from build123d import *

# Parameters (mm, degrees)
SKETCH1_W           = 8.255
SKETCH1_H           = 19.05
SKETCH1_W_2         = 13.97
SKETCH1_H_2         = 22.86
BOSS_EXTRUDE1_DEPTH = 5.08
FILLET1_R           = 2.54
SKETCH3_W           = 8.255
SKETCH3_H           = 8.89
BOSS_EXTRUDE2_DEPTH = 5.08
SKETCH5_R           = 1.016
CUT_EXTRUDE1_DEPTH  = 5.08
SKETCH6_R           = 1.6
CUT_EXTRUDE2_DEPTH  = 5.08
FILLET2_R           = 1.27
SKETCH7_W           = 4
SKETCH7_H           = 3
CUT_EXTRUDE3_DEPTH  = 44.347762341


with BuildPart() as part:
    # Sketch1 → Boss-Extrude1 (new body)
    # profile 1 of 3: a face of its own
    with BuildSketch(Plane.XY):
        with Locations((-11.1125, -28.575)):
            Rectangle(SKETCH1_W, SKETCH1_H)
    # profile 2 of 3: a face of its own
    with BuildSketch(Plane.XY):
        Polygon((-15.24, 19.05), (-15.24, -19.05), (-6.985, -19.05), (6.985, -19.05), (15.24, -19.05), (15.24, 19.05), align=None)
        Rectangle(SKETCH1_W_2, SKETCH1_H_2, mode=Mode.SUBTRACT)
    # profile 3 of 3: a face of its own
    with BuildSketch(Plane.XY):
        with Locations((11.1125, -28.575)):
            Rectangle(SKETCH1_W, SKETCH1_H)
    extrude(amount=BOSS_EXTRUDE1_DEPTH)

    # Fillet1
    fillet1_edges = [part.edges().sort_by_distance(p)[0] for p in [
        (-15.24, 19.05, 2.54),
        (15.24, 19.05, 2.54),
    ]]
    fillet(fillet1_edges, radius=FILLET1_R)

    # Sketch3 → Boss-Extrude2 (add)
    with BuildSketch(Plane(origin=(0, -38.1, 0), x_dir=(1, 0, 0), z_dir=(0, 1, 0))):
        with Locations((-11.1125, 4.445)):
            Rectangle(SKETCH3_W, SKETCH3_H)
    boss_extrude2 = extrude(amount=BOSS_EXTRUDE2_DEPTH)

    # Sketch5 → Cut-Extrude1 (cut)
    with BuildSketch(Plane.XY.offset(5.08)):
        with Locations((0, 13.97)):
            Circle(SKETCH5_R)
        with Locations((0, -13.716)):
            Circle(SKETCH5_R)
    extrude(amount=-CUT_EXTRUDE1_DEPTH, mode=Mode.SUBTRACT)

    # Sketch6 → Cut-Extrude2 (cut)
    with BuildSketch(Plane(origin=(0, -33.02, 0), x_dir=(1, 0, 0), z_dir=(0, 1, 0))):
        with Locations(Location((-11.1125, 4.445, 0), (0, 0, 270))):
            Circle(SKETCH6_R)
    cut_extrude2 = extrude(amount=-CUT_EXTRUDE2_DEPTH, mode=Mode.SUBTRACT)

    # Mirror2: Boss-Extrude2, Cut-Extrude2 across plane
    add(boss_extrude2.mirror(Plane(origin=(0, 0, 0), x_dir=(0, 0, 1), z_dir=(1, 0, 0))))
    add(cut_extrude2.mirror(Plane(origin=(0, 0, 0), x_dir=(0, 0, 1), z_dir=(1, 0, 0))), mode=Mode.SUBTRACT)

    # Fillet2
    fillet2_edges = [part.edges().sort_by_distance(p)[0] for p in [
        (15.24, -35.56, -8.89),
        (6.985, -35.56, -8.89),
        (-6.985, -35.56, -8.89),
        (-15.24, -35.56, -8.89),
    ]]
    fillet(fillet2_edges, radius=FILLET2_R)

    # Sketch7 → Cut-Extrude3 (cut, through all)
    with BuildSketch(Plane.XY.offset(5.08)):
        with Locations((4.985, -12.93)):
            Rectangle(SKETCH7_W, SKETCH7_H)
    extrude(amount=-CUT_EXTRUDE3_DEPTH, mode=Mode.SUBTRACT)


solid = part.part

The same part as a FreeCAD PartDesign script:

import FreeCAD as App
import Part
import Sketcher
from FreeCAD import Vector
Q = App.Units.Quantity


def edges_at(feature, points):
    """Names of the edges that pass closest to the given points."""
    edges = feature.Shape.Edges
    near = lambda p: min(range(len(edges)), key=lambda i: edges[i].distToShape(Part.Vertex(*p))[0])
    return sorted({f"Edge{near(p) + 1}" for p in points})

doc = App.newDocument("Part")
body = doc.addObject("PartDesign::Body", "Body")

sketch1 = body.newObject("Sketcher::SketchObject", "Sketch")
sketch1.AttachmentSupport = (doc.getObject("XY_Plane"), [""])
sketch1.MapMode = "FlatFace"
sketch1.addGeometry(Part.LineSegment(Vector(-15, -38, 0), Vector(-7, -38, 0)), False)
sketch1.addGeometry(Part.LineSegment(Vector(-7, -38, 0), Vector(-7, -19, 0)), False)
sketch1.addGeometry(Part.LineSegment(Vector(-7, -19, 0), Vector(7, -19, 0)), False)
sketch1.addGeometry(Part.LineSegment(Vector(7, -19, 0), Vector(7, -38, 0)), False)
sketch1.addGeometry(Part.LineSegment(Vector(7, -38, 0), Vector(15, -38, 0)), False)
sketch1.addGeometry(Part.LineSegment(Vector(15, -38, 0), Vector(15, 19, 0)), False)
sketch1.addGeometry(Part.LineSegment(Vector(15, 19, 0), Vector(-15, 19, 0)), False)
sketch1.addGeometry(Part.LineSegment(Vector(-15, 19, 0), Vector(-15, -38, 0)), False)
sketch1.addGeometry(Part.LineSegment(Vector(-7, -11, 0), Vector(-7, 11, 0)), False)
sketch1.addGeometry(Part.LineSegment(Vector(-7, 11, 0), Vector(7, 11, 0)), False)
sketch1.addGeometry(Part.LineSegment(Vector(7, 11, 0), Vector(7, -11, 0)), False)
sketch1.addGeometry(Part.LineSegment(Vector(7, -11, 0), Vector(-7, -11, 0)), False)
sketch1.addConstraint(Sketcher.Constraint("Coincident", 0, 2, 1, 1))
sketch1.addConstraint(Sketcher.Constraint("Coincident", 1, 2, 2, 1))
sketch1.addConstraint(Sketcher.Constraint("Coincident", 2, 2, 3, 1))
sketch1.addConstraint(Sketcher.Constraint("Coincident", 3, 2, 4, 1))
sketch1.addConstraint(Sketcher.Constraint("Coincident", 4, 2, 5, 1))
sketch1.addConstraint(Sketcher.Constraint("Coincident", 5, 2, 6, 1))
sketch1.addConstraint(Sketcher.Constraint("Coincident", 6, 2, 7, 1))
sketch1.addConstraint(Sketcher.Constraint("Coincident", 7, 2, 0, 1))
sketch1.addConstraint(Sketcher.Constraint("Coincident", 8, 2, 9, 1))
sketch1.addConstraint(Sketcher.Constraint("Coincident", 9, 2, 10, 1))
sketch1.addConstraint(Sketcher.Constraint("Coincident", 10, 2, 11, 1))
sketch1.addConstraint(Sketcher.Constraint("Coincident", 11, 2, 8, 1))
sketch1.addConstraint(Sketcher.Constraint("Horizontal", 0))
sketch1.addConstraint(Sketcher.Constraint("Vertical", 1))
sketch1.addConstraint(Sketcher.Constraint("Horizontal", 2))
sketch1.addConstraint(Sketcher.Constraint("Vertical", 3))
sketch1.addConstraint(Sketcher.Constraint("Horizontal", 4))
sketch1.addConstraint(Sketcher.Constraint("Vertical", 5))
sketch1.addConstraint(Sketcher.Constraint("Horizontal", 6))
sketch1.addConstraint(Sketcher.Constraint("Vertical", 7))
sketch1.addConstraint(Sketcher.Constraint("Vertical", 8))
sketch1.addConstraint(Sketcher.Constraint("Horizontal", 9))
sketch1.addConstraint(Sketcher.Constraint("Vertical", 10))
sketch1.addConstraint(Sketcher.Constraint("Horizontal", 11))
sketch1.addConstraint(Sketcher.Constraint("Symmetric", 8, 2, 10, 2, -1, 1))
sketch1.addConstraint(Sketcher.Constraint("Symmetric", 0, 2, 3, 2, -2))
sketch1.addConstraint(Sketcher.Constraint("Vertical", 1, 2, 8, 2))
sketch1.addConstraint(Sketcher.Constraint("Equal", 0, 4))
sketch1.addConstraint(Sketcher.Constraint("DistanceX", 6, 2, 6, 1, Q("1.2 in")))
sketch1.addConstraint(Sketcher.Constraint("DistanceY", 8, 1, 8, 2, Q("0.9 in")))
sketch1.addConstraint(Sketcher.Constraint("DistanceX", 2, 1, 2, 2, Q("0.55 in")))
sketch1.addConstraint(Sketcher.Constraint("DistanceY", 1, 1, 1, 2, Q("0.75 in")))
sketch1.addConstraint(Sketcher.Constraint("DistanceY", 5, 1, 5, 2, Q("2.25 in")))
sketch1.addConstraint(Sketcher.Constraint("DistanceY", 0, 2, -1, 1, Q("1.5 in")))
pad1 = body.newObject("PartDesign::Pad", "Pad")
pad1.Profile = sketch1
pad1.Length = Q("0.2 in")
doc.recompute()

fillet = body.newObject("PartDesign::Fillet", "Fillet")
fillet.Base = (pad1, edges_at(pad1, [(-15.24, 19.05, 2.54), (15.24, 19.05, 2.54)]))
fillet.Radius = Q("0.1 in")

sketch2 = body.newObject("Sketcher::SketchObject", "Sketch001")
sketch2.AttachmentSupport = (doc.getObject("XZ_Plane"), [""])
sketch2.MapMode = "FlatFace"
sketch2.AttachmentOffset = App.Placement(Vector(0, 0, 1.5 * 25.4), App.Rotation())
sketch2.addGeometry(Part.LineSegment(Vector(-15, -9, 0), Vector(-15, 0, 0)), False)
sketch2.addGeometry(Part.LineSegment(Vector(-15, 0, 0), Vector(-7, 0, 0)), False)
sketch2.addGeometry(Part.LineSegment(Vector(-7, 0, 0), Vector(-7, -9, 0)), False)
sketch2.addGeometry(Part.LineSegment(Vector(-7, -9, 0), Vector(-15, -9, 0)), False)
sketch2.addConstraint(Sketcher.Constraint("Coincident", 0, 2, 1, 1))
sketch2.addConstraint(Sketcher.Constraint("Coincident", 1, 2, 2, 1))
sketch2.addConstraint(Sketcher.Constraint("Coincident", 2, 2, 3, 1))
sketch2.addConstraint(Sketcher.Constraint("Coincident", 3, 2, 0, 1))
sketch2.addConstraint(Sketcher.Constraint("Vertical", 0))
sketch2.addConstraint(Sketcher.Constraint("Horizontal", 1))
sketch2.addConstraint(Sketcher.Constraint("Vertical", 2))
sketch2.addConstraint(Sketcher.Constraint("Horizontal", 3))
sketch2.addConstraint(Sketcher.Constraint("PointOnObject", 0, 2, -1))
sketch2.addConstraint(Sketcher.Constraint("DistanceY", 0, 1, 0, 2, Q("0.35 in")))
sketch2.addConstraint(Sketcher.Constraint("DistanceX", 0, 2, -1, 1, Q("0.6 in")))
sketch2.addConstraint(Sketcher.Constraint("DistanceX", 1, 1, 1, 2, Q("0.325 in")))
pad2 = body.newObject("PartDesign::Pad", "Pad001")
pad2.Profile = sketch2
pad2.Length = Q("0.2 in")
pad2.Reversed = True

sketch3 = body.newObject("Sketcher::SketchObject", "Sketch002")
sketch3.AttachmentSupport = (doc.getObject("XY_Plane"), [""])
sketch3.MapMode = "FlatFace"
sketch3.AttachmentOffset = App.Placement(Vector(0, 0, 0.2 * 25.4), App.Rotation())
sketch3.addGeometry(Part.Circle(Vector(0, 14, 0), Vector(0, 0, 1), 1), False)
sketch3.addGeometry(Part.Circle(Vector(0, -13.7, 0), Vector(0, 0, 1), 1), False)
sketch3.addConstraint(Sketcher.Constraint("Equal", 0, 1))
sketch3.addConstraint(Sketcher.Constraint("PointOnObject", 0, 3, -2))
sketch3.addConstraint(Sketcher.Constraint("PointOnObject", 1, 3, -2))
sketch3.addConstraint(Sketcher.Constraint("Diameter", 0, Q("0.08 in")))
sketch3.addConstraint(Sketcher.Constraint("DistanceY", -1, 1, 0, 3, Q("0.55 in")))
sketch3.addConstraint(Sketcher.Constraint("DistanceY", 1, 3, -1, 1, Q("0.54 in")))
pocket1 = body.newObject("PartDesign::Pocket", "Pocket")
pocket1.Profile = sketch3
pocket1.Length = Q("0.2 in")

sketch4 = body.newObject("Sketcher::SketchObject", "Sketch003")
sketch4.AttachmentSupport = (doc.getObject("XZ_Plane"), [""])
sketch4.MapMode = "FlatFace"
sketch4.AttachmentOffset = App.Placement(Vector(0, 0, 1.3 * 25.4), App.Rotation())
sketch4.addGeometry(Part.Circle(Vector(-11.1, -4.4, 0), Vector(0, 0, 1), 1.6), False)
sketch4.addConstraint(Sketcher.Constraint("Diameter", 0, Q("3.2 mm")))
sketch4.addConstraint(Sketcher.Constraint("DistanceX", 0, 3, -1, 1, Q("0.4375 in")))
sketch4.addConstraint(Sketcher.Constraint("DistanceY", 0, 3, -1, 1, Q("0.175 in")))
pocket2 = body.newObject("PartDesign::Pocket", "Pocket001")
pocket2.Profile = sketch4
pocket2.Length = Q("0.2 in")
pocket2.Reversed = True
doc.recompute()

mirrored = body.newObject("PartDesign::Mirrored", "Mirrored")
mirrored.Originals = [pad2, pocket2]
mirrored.MirrorPlane = (doc.getObject("YZ_Plane"), [""])
body.Tip = mirrored
doc.recompute()

fillet2 = body.newObject("PartDesign::Fillet", "Fillet001")
fillet2.Base = (mirrored, edges_at(mirrored, [
    (15.24, -35.56, -8.89),
    (6.985, -35.56, -8.89),
    (-6.985, -35.56, -8.89),
    (-15.24, -35.56, -8.89),
]))
fillet2.Radius = Q("0.05 in")

sketch5 = body.newObject("Sketcher::SketchObject", "Sketch004")
sketch5.AttachmentSupport = (doc.getObject("XY_Plane"), [""])
sketch5.MapMode = "FlatFace"
sketch5.AttachmentOffset = App.Placement(Vector(0, 0, 0.2 * 25.4), App.Rotation())
sketch5.addGeometry(Part.LineSegment(Vector(3, -11.4, 0), Vector(3, -14.4, 0)), False)
sketch5.addGeometry(Part.LineSegment(Vector(3, -14.4, 0), Vector(7, -14.4, 0)), False)
sketch5.addGeometry(Part.LineSegment(Vector(7, -14.4, 0), Vector(7, -11.4, 0)), False)
sketch5.addGeometry(Part.LineSegment(Vector(7, -11.4, 0), Vector(3, -11.4, 0)), False)
sketch5.addConstraint(Sketcher.Constraint("Coincident", 0, 2, 1, 1))
sketch5.addConstraint(Sketcher.Constraint("Coincident", 1, 2, 2, 1))
sketch5.addConstraint(Sketcher.Constraint("Coincident", 2, 2, 3, 1))
sketch5.addConstraint(Sketcher.Constraint("Coincident", 3, 2, 0, 1))
sketch5.addConstraint(Sketcher.Constraint("Vertical", 0))
sketch5.addConstraint(Sketcher.Constraint("Horizontal", 1))
sketch5.addConstraint(Sketcher.Constraint("Vertical", 2))
sketch5.addConstraint(Sketcher.Constraint("Horizontal", 3))
sketch5.addConstraint(Sketcher.Constraint("DistanceY", 2, 2, -1, 1, Q("0.45 in")))
sketch5.addConstraint(Sketcher.Constraint("DistanceX", -1, 1, 1, 2, Q("0.275 in")))
sketch5.addConstraint(Sketcher.Constraint("DistanceX", 1, 1, 1, 2, Q("4 mm")))
sketch5.addConstraint(Sketcher.Constraint("DistanceY", 0, 2, 0, 1, Q("3 mm")))
pocket3 = body.newObject("PartDesign::Pocket", "Pocket002")
pocket3.Profile = sketch5
pocket3.Type = "ThroughAll"

doc.recompute()
